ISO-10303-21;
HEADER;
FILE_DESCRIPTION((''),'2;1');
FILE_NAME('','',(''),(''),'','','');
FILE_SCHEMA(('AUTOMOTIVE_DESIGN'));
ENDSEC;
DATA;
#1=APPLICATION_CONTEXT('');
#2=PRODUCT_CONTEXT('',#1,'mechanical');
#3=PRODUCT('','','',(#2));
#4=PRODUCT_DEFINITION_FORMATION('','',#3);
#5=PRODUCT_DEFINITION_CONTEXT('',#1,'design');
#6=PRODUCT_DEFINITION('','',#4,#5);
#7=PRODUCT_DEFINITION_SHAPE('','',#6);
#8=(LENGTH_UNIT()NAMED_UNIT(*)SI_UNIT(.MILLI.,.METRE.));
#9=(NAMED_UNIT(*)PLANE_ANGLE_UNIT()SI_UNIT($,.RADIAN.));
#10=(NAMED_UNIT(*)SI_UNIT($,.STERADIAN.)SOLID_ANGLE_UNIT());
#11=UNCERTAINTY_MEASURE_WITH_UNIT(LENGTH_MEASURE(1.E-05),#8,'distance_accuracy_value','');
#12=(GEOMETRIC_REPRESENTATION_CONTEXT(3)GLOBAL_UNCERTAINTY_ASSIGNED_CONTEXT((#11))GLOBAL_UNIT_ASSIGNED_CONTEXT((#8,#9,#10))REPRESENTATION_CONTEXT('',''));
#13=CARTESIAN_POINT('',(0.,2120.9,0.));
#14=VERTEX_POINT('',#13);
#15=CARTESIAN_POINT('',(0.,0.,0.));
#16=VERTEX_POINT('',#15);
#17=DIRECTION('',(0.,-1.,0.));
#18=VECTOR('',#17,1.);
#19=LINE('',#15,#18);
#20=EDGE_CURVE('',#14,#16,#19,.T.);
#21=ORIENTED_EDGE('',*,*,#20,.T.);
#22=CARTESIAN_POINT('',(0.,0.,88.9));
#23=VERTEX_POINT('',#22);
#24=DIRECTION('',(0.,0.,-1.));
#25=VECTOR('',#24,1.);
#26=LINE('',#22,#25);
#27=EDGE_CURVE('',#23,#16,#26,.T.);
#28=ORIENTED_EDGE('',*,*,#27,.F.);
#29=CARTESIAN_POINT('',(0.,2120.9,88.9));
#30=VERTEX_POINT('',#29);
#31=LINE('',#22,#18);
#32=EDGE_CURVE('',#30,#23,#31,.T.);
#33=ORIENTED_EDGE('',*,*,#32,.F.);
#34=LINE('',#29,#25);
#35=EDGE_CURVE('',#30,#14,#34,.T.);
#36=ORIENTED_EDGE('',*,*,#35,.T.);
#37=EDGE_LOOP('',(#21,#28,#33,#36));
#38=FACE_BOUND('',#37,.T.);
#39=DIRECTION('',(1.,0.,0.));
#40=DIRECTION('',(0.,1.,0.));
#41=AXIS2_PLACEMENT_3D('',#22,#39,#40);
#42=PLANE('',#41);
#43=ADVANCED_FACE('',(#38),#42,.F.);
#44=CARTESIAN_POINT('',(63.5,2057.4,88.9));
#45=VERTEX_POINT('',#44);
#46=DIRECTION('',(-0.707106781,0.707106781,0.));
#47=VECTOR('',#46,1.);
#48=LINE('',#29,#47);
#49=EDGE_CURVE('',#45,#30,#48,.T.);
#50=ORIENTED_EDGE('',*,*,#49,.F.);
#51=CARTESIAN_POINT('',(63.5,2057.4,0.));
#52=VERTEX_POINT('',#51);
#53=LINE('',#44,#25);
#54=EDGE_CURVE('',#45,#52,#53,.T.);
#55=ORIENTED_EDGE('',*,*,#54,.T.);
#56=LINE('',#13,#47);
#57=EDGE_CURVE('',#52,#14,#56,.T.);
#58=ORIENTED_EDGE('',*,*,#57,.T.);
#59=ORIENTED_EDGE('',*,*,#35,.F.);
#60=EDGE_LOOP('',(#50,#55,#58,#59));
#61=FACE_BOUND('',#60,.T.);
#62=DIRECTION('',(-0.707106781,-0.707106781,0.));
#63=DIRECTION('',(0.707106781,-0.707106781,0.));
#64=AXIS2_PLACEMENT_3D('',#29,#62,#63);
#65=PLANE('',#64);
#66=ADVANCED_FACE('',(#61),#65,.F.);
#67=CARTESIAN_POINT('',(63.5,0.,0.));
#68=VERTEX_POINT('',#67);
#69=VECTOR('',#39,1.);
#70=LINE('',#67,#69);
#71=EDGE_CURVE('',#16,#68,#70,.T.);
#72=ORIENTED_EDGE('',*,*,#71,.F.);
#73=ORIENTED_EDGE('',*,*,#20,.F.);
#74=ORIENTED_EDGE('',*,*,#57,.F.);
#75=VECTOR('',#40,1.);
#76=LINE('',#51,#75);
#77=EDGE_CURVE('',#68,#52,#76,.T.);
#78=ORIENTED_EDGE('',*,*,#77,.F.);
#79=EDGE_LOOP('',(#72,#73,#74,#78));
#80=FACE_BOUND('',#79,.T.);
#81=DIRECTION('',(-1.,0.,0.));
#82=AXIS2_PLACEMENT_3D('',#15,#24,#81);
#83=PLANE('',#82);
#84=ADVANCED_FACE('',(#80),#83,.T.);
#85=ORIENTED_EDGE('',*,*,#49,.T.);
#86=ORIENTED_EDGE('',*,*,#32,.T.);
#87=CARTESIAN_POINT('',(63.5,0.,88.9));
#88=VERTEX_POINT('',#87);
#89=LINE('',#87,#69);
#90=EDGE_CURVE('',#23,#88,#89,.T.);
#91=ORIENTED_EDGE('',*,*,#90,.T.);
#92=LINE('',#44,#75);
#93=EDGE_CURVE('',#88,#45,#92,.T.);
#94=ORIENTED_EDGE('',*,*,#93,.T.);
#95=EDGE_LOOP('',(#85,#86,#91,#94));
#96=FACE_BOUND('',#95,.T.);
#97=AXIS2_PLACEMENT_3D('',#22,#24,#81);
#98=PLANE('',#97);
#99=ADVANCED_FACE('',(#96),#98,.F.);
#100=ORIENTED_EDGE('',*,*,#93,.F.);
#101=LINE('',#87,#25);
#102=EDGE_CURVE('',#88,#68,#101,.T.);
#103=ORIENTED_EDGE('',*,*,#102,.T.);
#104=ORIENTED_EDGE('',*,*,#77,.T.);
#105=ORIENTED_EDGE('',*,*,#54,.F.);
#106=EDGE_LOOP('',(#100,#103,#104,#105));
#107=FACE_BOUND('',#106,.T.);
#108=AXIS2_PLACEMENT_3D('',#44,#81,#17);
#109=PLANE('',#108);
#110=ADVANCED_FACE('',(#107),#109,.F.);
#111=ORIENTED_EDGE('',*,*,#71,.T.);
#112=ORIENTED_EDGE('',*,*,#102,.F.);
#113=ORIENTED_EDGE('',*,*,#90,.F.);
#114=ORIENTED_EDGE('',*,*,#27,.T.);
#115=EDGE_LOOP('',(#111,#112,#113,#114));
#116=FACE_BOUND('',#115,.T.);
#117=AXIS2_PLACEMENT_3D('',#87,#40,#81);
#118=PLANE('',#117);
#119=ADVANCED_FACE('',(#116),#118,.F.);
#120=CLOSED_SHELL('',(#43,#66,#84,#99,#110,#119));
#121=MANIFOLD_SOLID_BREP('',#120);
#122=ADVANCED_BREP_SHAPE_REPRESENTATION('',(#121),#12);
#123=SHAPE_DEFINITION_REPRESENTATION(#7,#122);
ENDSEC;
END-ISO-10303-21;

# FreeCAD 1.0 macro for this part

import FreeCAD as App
import Part
import Sketcher
from FreeCAD import Vector
Q = App.Units.Quantity


def add_polygon(sketch, points):
    """Adds a closed chain of lines whose ends are joined by coincident constraints."""
    first, n = sketch.GeometryCount, len(points)
    for a, b in zip(points, points[1:] + points[:1]):
        sketch.addGeometry(Part.LineSegment(App.Vector(*a, 0), App.Vector(*b, 0)), False)
    for i in range(n):
        sketch.addConstraint(Sketcher.Constraint("Coincident", first + i, 2, first + (i + 1) % n, 1))

doc = App.newDocument("Part")
body = doc.addObject("PartDesign::Body", "Body")

sketch1 = body.newObject("Sketcher::SketchObject", "Sketch")
sketch1.AttachmentSupport = (doc.getObject("XY_Plane"), [""])
sketch1.MapMode = "FlatFace"
add_polygon(sketch1, [(0, 2121), (0, 0), (64, 0), (64, 2057)])
sketch1.addConstraint([
    Sketcher.Constraint("Vertical", 0),
    Sketcher.Constraint("Horizontal", 1),
    Sketcher.Constraint("Vertical", 2),
    Sketcher.Constraint("Coincident", 0, 2, -1, 1),
    Sketcher.Constraint("DistanceY", 2, 1, 2, 2, Q("81 in")),
    Sketcher.Constraint("DistanceX", 1, 1, 1, 2, Q("2.5 in")),
    Sketcher.Constraint("DistanceY", 0, 2, 0, 1, Q("83.5 in")),
])
pad1 = body.newObject("PartDesign::Pad", "Pad")
pad1.Profile = sketch1
pad1.Length = Q("3.5 in")

doc.recompute()
